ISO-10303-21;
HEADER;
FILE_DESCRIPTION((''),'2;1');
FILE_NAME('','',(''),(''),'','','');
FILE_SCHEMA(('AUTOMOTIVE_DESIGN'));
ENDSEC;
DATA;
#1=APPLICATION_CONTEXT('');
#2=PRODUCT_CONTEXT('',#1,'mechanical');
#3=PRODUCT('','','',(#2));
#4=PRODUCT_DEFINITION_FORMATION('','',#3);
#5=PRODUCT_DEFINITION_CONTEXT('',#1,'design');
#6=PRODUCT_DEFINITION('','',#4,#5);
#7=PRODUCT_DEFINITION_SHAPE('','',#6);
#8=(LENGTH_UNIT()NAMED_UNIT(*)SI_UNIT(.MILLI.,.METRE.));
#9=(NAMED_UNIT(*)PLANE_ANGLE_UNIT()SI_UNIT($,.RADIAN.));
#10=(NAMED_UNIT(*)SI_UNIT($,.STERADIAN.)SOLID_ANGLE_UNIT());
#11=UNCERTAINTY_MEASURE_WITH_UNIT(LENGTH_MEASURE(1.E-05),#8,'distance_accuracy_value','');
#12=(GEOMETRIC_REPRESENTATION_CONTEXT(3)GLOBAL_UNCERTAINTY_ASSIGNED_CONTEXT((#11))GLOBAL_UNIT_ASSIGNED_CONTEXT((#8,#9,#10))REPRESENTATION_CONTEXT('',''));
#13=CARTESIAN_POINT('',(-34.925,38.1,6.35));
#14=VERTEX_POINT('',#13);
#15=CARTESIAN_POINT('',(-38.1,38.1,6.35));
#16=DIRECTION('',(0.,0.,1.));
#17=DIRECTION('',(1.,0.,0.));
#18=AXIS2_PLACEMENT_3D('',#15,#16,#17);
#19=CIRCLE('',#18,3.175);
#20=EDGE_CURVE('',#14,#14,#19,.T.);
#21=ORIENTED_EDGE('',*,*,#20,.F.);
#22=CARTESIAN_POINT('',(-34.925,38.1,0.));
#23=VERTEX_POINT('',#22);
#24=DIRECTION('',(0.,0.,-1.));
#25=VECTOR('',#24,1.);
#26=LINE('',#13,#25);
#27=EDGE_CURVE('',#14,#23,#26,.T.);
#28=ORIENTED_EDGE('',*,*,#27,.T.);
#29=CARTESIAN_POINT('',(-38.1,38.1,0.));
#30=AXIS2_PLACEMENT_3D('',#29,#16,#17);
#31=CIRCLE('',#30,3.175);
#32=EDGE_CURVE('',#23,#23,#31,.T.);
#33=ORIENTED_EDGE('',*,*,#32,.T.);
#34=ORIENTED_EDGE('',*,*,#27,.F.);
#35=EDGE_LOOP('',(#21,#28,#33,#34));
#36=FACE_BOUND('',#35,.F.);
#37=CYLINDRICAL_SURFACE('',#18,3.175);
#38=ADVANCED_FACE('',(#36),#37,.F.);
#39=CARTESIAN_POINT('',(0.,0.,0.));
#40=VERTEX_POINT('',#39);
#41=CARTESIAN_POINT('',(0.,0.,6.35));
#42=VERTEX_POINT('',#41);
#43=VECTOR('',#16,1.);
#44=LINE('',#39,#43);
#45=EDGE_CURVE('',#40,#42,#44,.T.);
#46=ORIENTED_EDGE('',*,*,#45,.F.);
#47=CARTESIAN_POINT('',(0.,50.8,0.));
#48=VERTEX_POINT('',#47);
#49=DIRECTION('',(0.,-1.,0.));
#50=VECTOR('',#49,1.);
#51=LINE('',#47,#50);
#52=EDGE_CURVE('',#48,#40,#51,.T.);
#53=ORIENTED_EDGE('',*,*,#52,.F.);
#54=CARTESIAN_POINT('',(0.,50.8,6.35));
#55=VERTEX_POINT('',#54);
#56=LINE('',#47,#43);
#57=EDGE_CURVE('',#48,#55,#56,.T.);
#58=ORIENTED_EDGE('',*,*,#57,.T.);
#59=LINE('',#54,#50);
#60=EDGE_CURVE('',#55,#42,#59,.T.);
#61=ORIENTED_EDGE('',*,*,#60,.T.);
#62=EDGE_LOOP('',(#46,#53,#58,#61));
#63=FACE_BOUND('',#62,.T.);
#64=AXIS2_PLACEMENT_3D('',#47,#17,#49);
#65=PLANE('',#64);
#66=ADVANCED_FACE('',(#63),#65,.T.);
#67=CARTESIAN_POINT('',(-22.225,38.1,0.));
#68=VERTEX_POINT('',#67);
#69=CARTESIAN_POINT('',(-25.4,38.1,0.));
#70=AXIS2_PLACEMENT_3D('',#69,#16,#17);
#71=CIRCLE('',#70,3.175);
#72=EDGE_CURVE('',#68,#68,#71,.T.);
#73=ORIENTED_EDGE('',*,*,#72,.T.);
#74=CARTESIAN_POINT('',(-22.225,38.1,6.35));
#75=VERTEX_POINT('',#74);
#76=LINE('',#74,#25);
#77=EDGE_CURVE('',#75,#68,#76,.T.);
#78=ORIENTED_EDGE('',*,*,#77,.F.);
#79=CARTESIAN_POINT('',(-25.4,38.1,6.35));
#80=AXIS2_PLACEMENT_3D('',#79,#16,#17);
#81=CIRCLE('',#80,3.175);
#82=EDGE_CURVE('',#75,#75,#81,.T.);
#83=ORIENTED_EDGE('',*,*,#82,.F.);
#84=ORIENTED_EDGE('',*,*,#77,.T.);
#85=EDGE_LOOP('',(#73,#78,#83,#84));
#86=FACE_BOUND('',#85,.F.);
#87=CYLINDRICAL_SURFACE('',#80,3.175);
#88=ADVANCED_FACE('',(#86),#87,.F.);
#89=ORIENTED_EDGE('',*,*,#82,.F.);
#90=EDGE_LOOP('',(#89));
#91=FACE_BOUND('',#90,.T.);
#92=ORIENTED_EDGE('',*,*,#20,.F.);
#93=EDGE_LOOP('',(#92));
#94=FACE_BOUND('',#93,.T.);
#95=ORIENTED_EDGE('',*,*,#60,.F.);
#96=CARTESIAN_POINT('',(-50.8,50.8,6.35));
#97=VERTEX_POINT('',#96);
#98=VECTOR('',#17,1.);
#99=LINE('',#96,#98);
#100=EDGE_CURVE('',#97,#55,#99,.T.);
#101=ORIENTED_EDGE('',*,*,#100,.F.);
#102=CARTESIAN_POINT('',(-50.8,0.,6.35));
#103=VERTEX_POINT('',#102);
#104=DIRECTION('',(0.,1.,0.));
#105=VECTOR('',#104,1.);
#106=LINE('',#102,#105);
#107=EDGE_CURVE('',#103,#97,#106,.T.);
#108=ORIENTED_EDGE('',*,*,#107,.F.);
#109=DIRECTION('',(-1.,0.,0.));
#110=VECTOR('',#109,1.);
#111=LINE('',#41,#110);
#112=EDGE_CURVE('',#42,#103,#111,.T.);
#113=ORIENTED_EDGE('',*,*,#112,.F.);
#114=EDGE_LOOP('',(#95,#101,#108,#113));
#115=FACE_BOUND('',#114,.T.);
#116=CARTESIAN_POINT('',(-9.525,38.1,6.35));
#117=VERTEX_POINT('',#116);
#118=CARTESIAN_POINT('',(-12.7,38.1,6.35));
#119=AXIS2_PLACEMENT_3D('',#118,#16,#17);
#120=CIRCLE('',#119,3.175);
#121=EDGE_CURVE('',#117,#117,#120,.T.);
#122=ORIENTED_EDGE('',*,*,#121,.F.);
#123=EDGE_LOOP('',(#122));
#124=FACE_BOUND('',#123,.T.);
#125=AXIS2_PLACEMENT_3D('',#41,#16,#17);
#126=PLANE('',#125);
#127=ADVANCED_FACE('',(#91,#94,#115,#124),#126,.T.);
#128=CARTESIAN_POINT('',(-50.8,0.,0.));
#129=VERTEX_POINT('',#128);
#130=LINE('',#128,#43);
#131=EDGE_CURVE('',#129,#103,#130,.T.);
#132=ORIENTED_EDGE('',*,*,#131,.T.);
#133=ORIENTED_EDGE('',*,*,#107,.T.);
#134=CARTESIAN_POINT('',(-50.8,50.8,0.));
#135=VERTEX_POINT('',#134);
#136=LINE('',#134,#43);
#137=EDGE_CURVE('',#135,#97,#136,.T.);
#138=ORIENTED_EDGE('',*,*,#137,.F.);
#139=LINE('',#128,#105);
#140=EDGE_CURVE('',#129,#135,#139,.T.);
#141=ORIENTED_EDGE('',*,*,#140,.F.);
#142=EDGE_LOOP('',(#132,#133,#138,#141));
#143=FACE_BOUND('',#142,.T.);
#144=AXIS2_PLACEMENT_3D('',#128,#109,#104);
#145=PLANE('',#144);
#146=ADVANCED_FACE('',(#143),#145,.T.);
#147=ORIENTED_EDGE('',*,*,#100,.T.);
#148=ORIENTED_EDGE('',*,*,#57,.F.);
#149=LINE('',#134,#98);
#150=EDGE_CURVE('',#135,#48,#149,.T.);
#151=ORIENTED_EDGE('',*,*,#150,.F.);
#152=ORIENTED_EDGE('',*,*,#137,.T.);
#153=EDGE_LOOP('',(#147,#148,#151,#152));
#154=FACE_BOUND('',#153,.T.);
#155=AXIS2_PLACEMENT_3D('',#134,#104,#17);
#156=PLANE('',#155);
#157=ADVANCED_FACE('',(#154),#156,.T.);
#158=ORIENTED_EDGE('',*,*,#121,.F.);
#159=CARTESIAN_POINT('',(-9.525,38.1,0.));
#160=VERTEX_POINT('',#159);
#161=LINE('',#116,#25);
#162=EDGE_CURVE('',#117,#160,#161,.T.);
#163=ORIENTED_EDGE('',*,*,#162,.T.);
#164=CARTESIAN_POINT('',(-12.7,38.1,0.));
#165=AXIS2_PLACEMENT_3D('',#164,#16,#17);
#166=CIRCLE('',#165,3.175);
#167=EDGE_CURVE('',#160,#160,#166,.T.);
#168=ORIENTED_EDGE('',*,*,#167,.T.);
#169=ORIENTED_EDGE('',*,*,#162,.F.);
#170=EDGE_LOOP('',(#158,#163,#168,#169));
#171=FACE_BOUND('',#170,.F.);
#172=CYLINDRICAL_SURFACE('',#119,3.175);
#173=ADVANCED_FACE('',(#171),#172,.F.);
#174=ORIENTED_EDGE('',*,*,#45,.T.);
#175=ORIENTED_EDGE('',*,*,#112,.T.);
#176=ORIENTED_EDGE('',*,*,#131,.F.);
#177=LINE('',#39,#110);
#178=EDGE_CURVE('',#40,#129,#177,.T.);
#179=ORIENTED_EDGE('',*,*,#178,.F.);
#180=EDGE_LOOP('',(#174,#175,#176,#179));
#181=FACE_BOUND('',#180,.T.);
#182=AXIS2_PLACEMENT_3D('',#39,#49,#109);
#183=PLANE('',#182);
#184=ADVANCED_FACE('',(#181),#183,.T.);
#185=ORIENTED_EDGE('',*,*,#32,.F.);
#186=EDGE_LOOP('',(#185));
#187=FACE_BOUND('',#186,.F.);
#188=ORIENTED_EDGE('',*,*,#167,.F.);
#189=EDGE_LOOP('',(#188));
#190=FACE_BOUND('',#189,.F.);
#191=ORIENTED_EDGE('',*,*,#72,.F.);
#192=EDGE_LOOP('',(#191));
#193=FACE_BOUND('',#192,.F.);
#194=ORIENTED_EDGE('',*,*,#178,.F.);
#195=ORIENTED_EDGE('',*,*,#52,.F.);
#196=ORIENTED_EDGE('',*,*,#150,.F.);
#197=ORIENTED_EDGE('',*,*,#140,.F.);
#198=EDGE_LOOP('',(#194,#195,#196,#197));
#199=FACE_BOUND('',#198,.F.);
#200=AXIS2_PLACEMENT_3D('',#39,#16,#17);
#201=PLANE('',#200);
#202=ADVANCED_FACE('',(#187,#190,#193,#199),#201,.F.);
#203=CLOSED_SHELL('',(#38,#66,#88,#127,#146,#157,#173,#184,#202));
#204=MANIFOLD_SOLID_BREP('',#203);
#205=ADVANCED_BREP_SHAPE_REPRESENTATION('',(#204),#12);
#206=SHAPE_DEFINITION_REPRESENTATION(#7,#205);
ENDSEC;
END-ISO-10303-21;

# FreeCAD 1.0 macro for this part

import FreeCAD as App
import Part
import Sketcher
from FreeCAD import Vector
Q = App.Units.Quantity

doc = App.newDocument("Part")
body = doc.addObject("PartDesign::Body", "Body")

# Sketch on XY plane
sketch1 = body.newObject("Sketcher::SketchObject", "Sketch")
sketch1.AttachmentSupport = (doc.getObject("XY_Plane"), [""])
sketch1.MapMode = "FlatFace"
sketch1.addGeometry(Part.LineSegment(Vector(-51, 0, 0), Vector(0, 0, 0)), False)
sketch1.addGeometry(Part.LineSegment(Vector(0, 0, 0), Vector(0, 51, 0)), False)
sketch1.addGeometry(Part.LineSegment(Vector(0, 51, 0), Vector(-51, 51, 0)), False)
sketch1.addGeometry(Part.LineSegment(Vector(-51, 51, 0), Vector(-51, 0, 0)), False)
sketch1.addConstraint(Sketcher.Constraint("Coincident", 0, 2, 1, 1))
sketch1.addConstraint(Sketcher.Constraint("Coincident", 1, 2, 2, 1))
sketch1.addConstraint(Sketcher.Constraint("Coincident", 2, 2, 3, 1))
sketch1.addConstraint(Sketcher.Constraint("Coincident", 3, 2, 0, 1))
sketch1.addConstraint(Sketcher.Constraint("Horizontal", 0))
sketch1.addConstraint(Sketcher.Constraint("Vertical", 1))
sketch1.addConstraint(Sketcher.Constraint("Horizontal", 2))
sketch1.addConstraint(Sketcher.Constraint("Vertical", 3))
sketch1.addConstraint(Sketcher.Constraint("Coincident", 0, 2, -1, 1))
sketch1.addConstraint(Sketcher.Constraint("Equal", 2, 1))
sketch1.addConstraint(Sketcher.Constraint("DistanceX", 0, 1, 0, 2, Q("2 in")))
pad1 = body.newObject("PartDesign::Pad", "Pad")
pad1.Profile = sketch1
pad1.Length = Q("0.25 in")

# Sketch on XY plane
sketch2 = body.newObject("Sketcher::SketchObject", "Sketch001")
sketch2.AttachmentSupport = (doc.getObject("XY_Plane"), [""])
sketch2.MapMode = "FlatFace"
sketch2.AttachmentOffset = App.Placement(Vector(0, 0, 0.25 * 25.4), App.Rotation())
sketch2.addGeometry(Part.Circle(Vector(-12.7, 38.1, 0), Vector(0, 0, 1), 3.2), False)
sketch2.addConstraint(Sketcher.Constraint("Diameter", 0, Q("0.25 in")))
sketch2.addConstraint(Sketcher.Constraint("DistanceX", 0, 3, -1, 1, Q("0.5 in")))
sketch2.addConstraint(Sketcher.Constraint("DistanceY", -1, 1, 0, 3, Q("1.5 in")))
pocket1 = body.newObject("PartDesign::Pocket", "Pocket")
pocket1.Profile = sketch2
pocket1.Type = "ThroughAll"
doc.recompute()

linearpattern = body.newObject("PartDesign::LinearPattern", "LinearPattern")
linearpattern.Originals = [pocket1]
linearpattern.Direction = (doc.getObject("X_Axis"), [""])
linearpattern.Mode = "offset"
linearpattern.Offset = Q("0.5 in")
linearpattern.Occurrences = 3
linearpattern.Reversed = True
body.Tip = linearpattern

doc.recompute()
